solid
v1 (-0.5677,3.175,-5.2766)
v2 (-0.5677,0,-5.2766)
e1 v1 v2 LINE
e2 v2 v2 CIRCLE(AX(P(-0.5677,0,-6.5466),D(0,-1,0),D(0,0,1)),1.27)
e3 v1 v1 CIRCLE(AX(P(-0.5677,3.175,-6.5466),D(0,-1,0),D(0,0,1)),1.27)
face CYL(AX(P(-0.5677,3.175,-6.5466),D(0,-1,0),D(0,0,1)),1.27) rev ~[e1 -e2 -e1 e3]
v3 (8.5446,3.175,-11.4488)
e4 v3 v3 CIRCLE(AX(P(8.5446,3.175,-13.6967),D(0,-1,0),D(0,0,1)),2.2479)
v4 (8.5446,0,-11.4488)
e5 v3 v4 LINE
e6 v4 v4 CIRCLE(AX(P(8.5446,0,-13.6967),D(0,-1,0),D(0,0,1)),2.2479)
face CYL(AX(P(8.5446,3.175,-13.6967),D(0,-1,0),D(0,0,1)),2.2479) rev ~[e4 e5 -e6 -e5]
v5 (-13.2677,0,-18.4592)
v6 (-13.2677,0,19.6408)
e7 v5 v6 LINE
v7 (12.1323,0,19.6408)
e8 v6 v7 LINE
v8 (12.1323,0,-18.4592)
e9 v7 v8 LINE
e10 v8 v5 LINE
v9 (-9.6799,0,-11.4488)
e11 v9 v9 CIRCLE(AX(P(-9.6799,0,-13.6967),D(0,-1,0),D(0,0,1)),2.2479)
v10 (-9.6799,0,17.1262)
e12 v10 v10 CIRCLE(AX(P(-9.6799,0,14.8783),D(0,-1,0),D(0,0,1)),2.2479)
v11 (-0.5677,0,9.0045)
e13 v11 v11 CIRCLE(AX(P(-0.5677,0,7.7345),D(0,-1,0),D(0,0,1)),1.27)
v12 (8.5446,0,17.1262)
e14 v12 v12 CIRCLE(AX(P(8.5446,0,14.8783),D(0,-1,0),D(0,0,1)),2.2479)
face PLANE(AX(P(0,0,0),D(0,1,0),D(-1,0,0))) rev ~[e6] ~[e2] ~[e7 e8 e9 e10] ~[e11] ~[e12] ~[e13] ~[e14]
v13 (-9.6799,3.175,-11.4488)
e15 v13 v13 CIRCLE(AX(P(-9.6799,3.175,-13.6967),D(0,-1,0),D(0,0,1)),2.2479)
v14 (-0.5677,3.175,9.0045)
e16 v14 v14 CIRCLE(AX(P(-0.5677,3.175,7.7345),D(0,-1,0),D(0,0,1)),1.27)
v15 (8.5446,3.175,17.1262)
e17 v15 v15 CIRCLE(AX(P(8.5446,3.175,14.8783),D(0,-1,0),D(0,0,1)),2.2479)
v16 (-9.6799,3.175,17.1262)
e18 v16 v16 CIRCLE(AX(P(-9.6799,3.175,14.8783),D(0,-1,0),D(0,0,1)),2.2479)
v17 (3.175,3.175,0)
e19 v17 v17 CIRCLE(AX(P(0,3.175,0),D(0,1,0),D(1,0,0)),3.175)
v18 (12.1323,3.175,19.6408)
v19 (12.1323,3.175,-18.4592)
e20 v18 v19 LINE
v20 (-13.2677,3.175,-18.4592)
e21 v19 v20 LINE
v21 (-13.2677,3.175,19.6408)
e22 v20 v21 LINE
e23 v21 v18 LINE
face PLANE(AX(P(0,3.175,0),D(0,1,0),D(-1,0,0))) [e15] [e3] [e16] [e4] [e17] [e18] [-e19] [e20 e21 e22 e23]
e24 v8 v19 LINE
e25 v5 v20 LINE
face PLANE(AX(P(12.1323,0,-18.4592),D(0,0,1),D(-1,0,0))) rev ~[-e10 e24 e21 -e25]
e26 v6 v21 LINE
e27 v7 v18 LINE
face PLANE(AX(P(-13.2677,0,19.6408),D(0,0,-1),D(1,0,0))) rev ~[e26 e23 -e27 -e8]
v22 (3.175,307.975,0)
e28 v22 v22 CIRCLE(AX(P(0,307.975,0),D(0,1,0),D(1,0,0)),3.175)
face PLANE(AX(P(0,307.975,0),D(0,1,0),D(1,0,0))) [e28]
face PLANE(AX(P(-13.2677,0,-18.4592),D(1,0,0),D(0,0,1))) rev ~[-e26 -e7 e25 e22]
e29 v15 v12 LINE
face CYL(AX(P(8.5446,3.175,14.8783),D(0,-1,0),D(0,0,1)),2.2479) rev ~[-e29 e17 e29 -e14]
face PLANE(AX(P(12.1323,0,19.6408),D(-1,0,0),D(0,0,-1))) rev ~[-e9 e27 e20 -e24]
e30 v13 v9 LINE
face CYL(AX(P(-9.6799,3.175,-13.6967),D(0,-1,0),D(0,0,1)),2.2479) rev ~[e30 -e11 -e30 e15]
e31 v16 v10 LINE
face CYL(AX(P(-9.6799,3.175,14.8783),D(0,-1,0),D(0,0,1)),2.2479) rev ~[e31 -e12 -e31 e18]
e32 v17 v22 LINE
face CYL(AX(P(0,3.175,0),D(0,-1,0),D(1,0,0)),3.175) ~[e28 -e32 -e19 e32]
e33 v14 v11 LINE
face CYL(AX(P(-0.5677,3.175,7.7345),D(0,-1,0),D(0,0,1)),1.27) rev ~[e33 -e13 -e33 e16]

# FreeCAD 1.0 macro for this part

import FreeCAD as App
import Part
import Sketcher

V = App.Vector
Q = App.Units.Quantity

doc = App.newDocument("Part")
body = doc.addObject("PartDesign::Body", "Body")

# Sketch on XZ plane
sketch1 = doc.addObject("Sketcher::SketchObject", "Sketch")
body.addObject(sketch1)
sketch1.AttachmentSupport = (doc.XZ_Plane, [""])
sketch1.MapMode = "FlatFace"
sketch1.addGeometry([
    Part.LineSegment(V(-13, -18, 0), V(-13, 20, 0)),
    Part.LineSegment(V(-13, 20, 0), V(12, 20, 0)),
    Part.LineSegment(V(12, 20, 0), V(12, -18, 0)),
    Part.LineSegment(V(12, -18, 0), V(-13, -18, 0)),
], False)
sketch1.addConstraint([
    Sketcher.Constraint("Coincident", 0, 2, 1, 1),
    Sketcher.Constraint("Coincident", 1, 2, 2, 1),
    Sketcher.Constraint("Coincident", 2, 2, 3, 1),
    Sketcher.Constraint("Coincident", 3, 2, 0, 1),
    Sketcher.Constraint("Vertical", 0),
    Sketcher.Constraint("Horizontal", 1),
    Sketcher.Constraint("Vertical", 2),
    Sketcher.Constraint("Horizontal", 3),
    Sketcher.Constraint("DistanceX", 1, 1, 1, 2, Q("1 in")),
    Sketcher.Constraint("DistanceY", 0, 1, 0, 2, Q("1.5 in")),
    Sketcher.Constraint("DistanceX", 0, 2, -1, 1, Q("13.2677 mm")),
    Sketcher.Constraint("DistanceY", -1, 1, 0, 2, Q("19.6408 mm")),
])
pad1 = doc.addObject("PartDesign::Pad", "Pad")
body.addObject(pad1)
pad1.Profile = sketch1
pad1.Length = Q("0.125 in")
pad1.Reversed = True

# Sketch on XZ plane
sketch2 = doc.addObject("Sketcher::SketchObject", "Sketch001")
body.addObject(sketch2)
sketch2.AttachmentSupport = (doc.XZ_Plane, [""])
sketch2.MapMode = "FlatFace"
sketch2.AttachmentOffset = App.Placement(V(0, 0, -0.125 * 25.4), App.Rotation())
sketch2.addGeometry(Part.Circle(V(-9.7, 14.9, 0), V(0, 0, 1), 2.2), False)
sketch2.addConstraint([
    Sketcher.Constraint("Diameter", 0, Q("0.177 in")),
    Sketcher.Constraint("DistanceX", 0, 3, -1, 1, Q("0.3811 in")),
    Sketcher.Constraint("DistanceY", -1, 1, 0, 3, Q("14.8783 mm")),
])
doc.recompute()
hole = doc.addObject("PartDesign::Hole", "Hole")
body.addObject(hole)
hole.Profile = sketch2
hole.ThreadType = "None"
hole.Diameter = Q("0.177 in")
hole.DepthType = "Dimension"
hole.Depth = Q("0.125 in")
hole.DrillPoint = "Flat"
hole.Reversed = True

# Sketch on XZ plane
sketch3 = doc.addObject("Sketcher::SketchObject", "Sketch002")
body.addObject(sketch3)
sketch3.AttachmentSupport = (doc.XZ_Plane, [""])
sketch3.MapMode = "FlatFace"
sketch3.AttachmentOffset = App.Placement(V(0, 0, -0.125 * 25.4), App.Rotation())
sketch3.addGeometry(Part.Circle(V(8.5, 14.9, 0), V(0, 0, 1), 2.2), False)
sketch3.addConstraint([
    Sketcher.Constraint("Diameter", 0, Q("0.177 in")),
    Sketcher.Constraint("DistanceX", -1, 1, 0, 3, Q("0.3364 in")),
    Sketcher.Constraint("DistanceY", -1, 1, 0, 3, Q("14.8783 mm")),
])
doc.recompute()
hole2 = doc.addObject("PartDesign::Hole", "Hole001")
body.addObject(hole2)
hole2.Profile = sketch3
hole2.ThreadType = "None"
hole2.Diameter = Q("0.177 in")
hole2.DepthType = "Dimension"
hole2.Depth = Q("0.125 in")
hole2.DrillPoint = "Flat"
hole2.Reversed = True

# Sketch on XZ plane
sketch4 = doc.addObject("Sketcher::SketchObject", "Sketch003")
body.addObject(sketch4)
sketch4.AttachmentSupport = (doc.XZ_Plane, [""])
sketch4.MapMode = "FlatFace"
sketch4.AttachmentOffset = App.Placement(V(0, 0, -0.125 * 25.4), App.Rotation())
sketch4.addGeometry(Part.Circle(V(-9.7, -13.7, 0), V(0, 0, 1), 2.2), False)
sketch4.addConstraint([
    Sketcher.Constraint("Diameter", 0, Q("0.177 in")),
    Sketcher.Constraint("DistanceX", 0, 3, -1, 1, Q("0.3811 in")),
    Sketcher.Constraint("DistanceY", 0, 3, -1, 1, Q("13.6967 mm")),
])
doc.recompute()
hole3 = doc.addObject("PartDesign::Hole", "Hole002")
body.addObject(hole3)
hole3.Profile = sketch4
hole3.ThreadType = "None"
hole3.Diameter = Q("0.177 in")
hole3.DepthType = "Dimension"
hole3.Depth = Q("0.125 in")
hole3.DrillPoint = "Flat"
hole3.Reversed = True

# Sketch on XZ plane
sketch5 = doc.addObject("Sketcher::SketchObject", "Sketch004")
body.addObject(sketch5)
sketch5.AttachmentSupport = (doc.XZ_Plane, [""])
sketch5.MapMode = "FlatFace"
sketch5.AttachmentOffset = App.Placement(V(0, 0, -0.125 * 25.4), App.Rotation())
sketch5.addGeometry(Part.Circle(V(8.5, -13.7, 0), V(0, 0, 1), 2.2), False)
sketch5.addConstraint([
    Sketcher.Constraint("Diameter", 0, Q("0.177 in")),
    Sketcher.Constraint("DistanceX", -1, 1, 0, 3, Q("0.3364 in")),
    Sketcher.Constraint("DistanceY", 0, 3, -1, 1, Q("13.6967 mm")),
])
doc.recompute()
hole4 = doc.addObject("PartDesign::Hole", "Hole003")
body.addObject(hole4)
hole4.Profile = sketch5
hole4.ThreadType = "None"
hole4.Diameter = Q("0.177 in")
hole4.DepthType = "Dimension"
hole4.Depth = Q("0.125 in")
hole4.DrillPoint = "Flat"
hole4.Reversed = True

# Sketch on XZ plane
sketch6 = doc.addObject("Sketcher::SketchObject", "Sketch005")
body.addObject(sketch6)
sketch6.AttachmentSupport = (doc.XZ_Plane, [""])
sketch6.MapMode = "FlatFace"
sketch6.AttachmentOffset = App.Placement(V(0, 0, -0.125 * 25.4), App.Rotation())
sketch6.addGeometry(Part.Circle(V(-0.6, -6.5, 0), V(0, 0, 1), 1.3), False)
sketch6.addConstraint([
    Sketcher.Constraint("Diameter", 0, Q("0.1 in")),
    Sketcher.Constraint("DistanceX", 0, 3, -1, 1, Q("0.5677 mm")),
    Sketcher.Constraint("DistanceY", 0, 3, -1, 1, Q("6.5466 mm")),
])
doc.recompute()
hole5 = doc.addObject("PartDesign::Hole", "Hole004")
body.addObject(hole5)
hole5.Profile = sketch6
hole5.ThreadType = "None"
hole5.Diameter = Q("0.1 in")
hole5.DepthType = "Dimension"
hole5.Depth = Q("0.125 in")
hole5.DrillPoint = "Flat"
hole5.Reversed = True

# Sketch on XZ plane
sketch7 = doc.addObject("Sketcher::SketchObject", "Sketch006")
body.addObject(sketch7)
sketch7.AttachmentSupport = (doc.XZ_Plane, [""])
sketch7.MapMode = "FlatFace"
sketch7.AttachmentOffset = App.Placement(V(0, 0, -0.125 * 25.4), App.Rotation())
sketch7.addGeometry(Part.Circle(V(-0.6, 7.7, 0), V(0, 0, 1), 1.3), False)
sketch7.addConstraint([
    Sketcher.Constraint("Diameter", 0, Q("0.1 in")),
    Sketcher.Constraint("DistanceY", -1, 1, 0, 3, Q("0.3045 in")),
    Sketcher.Constraint("DistanceX", 0, 3, -1, 1, Q("0.5677 mm")),
])
doc.recompute()
hole6 = doc.addObject("PartDesign::Hole", "Hole005")
body.addObject(hole6)
hole6.Profile = sketch7
hole6.ThreadType = "None"
hole6.Diameter = Q("0.1 in")
hole6.DepthType = "Dimension"
hole6.Depth = Q("0.125 in")
hole6.DrillPoint = "Flat"
hole6.Reversed = True

# Sketch on XZ plane
sketch8 = doc.addObject("Sketcher::SketchObject", "Sketch007")
body.addObject(sketch8)
sketch8.AttachmentSupport = (doc.XZ_Plane, [""])
sketch8.MapMode = "FlatFace"
sketch8.AttachmentOffset = App.Placement(V(0, 0, -0.125 * 25.4), App.Rotation())
sketch8.addGeometry(Part.Circle(V(0, 0, 0), V(0, 0, 1), 3.2), False)
sketch8.addConstraint([
    Sketcher.Constraint("Coincident", 0, 3, -1, 1),
    Sketcher.Constraint("Diameter", 0, Q("0.25 in")),
])
pad2 = doc.addObject("PartDesign::Pad", "Pad001")
body.addObject(pad2)
pad2.Profile = sketch8
pad2.Length = Q("12 in")
pad2.Reversed = True

doc.recompute()
